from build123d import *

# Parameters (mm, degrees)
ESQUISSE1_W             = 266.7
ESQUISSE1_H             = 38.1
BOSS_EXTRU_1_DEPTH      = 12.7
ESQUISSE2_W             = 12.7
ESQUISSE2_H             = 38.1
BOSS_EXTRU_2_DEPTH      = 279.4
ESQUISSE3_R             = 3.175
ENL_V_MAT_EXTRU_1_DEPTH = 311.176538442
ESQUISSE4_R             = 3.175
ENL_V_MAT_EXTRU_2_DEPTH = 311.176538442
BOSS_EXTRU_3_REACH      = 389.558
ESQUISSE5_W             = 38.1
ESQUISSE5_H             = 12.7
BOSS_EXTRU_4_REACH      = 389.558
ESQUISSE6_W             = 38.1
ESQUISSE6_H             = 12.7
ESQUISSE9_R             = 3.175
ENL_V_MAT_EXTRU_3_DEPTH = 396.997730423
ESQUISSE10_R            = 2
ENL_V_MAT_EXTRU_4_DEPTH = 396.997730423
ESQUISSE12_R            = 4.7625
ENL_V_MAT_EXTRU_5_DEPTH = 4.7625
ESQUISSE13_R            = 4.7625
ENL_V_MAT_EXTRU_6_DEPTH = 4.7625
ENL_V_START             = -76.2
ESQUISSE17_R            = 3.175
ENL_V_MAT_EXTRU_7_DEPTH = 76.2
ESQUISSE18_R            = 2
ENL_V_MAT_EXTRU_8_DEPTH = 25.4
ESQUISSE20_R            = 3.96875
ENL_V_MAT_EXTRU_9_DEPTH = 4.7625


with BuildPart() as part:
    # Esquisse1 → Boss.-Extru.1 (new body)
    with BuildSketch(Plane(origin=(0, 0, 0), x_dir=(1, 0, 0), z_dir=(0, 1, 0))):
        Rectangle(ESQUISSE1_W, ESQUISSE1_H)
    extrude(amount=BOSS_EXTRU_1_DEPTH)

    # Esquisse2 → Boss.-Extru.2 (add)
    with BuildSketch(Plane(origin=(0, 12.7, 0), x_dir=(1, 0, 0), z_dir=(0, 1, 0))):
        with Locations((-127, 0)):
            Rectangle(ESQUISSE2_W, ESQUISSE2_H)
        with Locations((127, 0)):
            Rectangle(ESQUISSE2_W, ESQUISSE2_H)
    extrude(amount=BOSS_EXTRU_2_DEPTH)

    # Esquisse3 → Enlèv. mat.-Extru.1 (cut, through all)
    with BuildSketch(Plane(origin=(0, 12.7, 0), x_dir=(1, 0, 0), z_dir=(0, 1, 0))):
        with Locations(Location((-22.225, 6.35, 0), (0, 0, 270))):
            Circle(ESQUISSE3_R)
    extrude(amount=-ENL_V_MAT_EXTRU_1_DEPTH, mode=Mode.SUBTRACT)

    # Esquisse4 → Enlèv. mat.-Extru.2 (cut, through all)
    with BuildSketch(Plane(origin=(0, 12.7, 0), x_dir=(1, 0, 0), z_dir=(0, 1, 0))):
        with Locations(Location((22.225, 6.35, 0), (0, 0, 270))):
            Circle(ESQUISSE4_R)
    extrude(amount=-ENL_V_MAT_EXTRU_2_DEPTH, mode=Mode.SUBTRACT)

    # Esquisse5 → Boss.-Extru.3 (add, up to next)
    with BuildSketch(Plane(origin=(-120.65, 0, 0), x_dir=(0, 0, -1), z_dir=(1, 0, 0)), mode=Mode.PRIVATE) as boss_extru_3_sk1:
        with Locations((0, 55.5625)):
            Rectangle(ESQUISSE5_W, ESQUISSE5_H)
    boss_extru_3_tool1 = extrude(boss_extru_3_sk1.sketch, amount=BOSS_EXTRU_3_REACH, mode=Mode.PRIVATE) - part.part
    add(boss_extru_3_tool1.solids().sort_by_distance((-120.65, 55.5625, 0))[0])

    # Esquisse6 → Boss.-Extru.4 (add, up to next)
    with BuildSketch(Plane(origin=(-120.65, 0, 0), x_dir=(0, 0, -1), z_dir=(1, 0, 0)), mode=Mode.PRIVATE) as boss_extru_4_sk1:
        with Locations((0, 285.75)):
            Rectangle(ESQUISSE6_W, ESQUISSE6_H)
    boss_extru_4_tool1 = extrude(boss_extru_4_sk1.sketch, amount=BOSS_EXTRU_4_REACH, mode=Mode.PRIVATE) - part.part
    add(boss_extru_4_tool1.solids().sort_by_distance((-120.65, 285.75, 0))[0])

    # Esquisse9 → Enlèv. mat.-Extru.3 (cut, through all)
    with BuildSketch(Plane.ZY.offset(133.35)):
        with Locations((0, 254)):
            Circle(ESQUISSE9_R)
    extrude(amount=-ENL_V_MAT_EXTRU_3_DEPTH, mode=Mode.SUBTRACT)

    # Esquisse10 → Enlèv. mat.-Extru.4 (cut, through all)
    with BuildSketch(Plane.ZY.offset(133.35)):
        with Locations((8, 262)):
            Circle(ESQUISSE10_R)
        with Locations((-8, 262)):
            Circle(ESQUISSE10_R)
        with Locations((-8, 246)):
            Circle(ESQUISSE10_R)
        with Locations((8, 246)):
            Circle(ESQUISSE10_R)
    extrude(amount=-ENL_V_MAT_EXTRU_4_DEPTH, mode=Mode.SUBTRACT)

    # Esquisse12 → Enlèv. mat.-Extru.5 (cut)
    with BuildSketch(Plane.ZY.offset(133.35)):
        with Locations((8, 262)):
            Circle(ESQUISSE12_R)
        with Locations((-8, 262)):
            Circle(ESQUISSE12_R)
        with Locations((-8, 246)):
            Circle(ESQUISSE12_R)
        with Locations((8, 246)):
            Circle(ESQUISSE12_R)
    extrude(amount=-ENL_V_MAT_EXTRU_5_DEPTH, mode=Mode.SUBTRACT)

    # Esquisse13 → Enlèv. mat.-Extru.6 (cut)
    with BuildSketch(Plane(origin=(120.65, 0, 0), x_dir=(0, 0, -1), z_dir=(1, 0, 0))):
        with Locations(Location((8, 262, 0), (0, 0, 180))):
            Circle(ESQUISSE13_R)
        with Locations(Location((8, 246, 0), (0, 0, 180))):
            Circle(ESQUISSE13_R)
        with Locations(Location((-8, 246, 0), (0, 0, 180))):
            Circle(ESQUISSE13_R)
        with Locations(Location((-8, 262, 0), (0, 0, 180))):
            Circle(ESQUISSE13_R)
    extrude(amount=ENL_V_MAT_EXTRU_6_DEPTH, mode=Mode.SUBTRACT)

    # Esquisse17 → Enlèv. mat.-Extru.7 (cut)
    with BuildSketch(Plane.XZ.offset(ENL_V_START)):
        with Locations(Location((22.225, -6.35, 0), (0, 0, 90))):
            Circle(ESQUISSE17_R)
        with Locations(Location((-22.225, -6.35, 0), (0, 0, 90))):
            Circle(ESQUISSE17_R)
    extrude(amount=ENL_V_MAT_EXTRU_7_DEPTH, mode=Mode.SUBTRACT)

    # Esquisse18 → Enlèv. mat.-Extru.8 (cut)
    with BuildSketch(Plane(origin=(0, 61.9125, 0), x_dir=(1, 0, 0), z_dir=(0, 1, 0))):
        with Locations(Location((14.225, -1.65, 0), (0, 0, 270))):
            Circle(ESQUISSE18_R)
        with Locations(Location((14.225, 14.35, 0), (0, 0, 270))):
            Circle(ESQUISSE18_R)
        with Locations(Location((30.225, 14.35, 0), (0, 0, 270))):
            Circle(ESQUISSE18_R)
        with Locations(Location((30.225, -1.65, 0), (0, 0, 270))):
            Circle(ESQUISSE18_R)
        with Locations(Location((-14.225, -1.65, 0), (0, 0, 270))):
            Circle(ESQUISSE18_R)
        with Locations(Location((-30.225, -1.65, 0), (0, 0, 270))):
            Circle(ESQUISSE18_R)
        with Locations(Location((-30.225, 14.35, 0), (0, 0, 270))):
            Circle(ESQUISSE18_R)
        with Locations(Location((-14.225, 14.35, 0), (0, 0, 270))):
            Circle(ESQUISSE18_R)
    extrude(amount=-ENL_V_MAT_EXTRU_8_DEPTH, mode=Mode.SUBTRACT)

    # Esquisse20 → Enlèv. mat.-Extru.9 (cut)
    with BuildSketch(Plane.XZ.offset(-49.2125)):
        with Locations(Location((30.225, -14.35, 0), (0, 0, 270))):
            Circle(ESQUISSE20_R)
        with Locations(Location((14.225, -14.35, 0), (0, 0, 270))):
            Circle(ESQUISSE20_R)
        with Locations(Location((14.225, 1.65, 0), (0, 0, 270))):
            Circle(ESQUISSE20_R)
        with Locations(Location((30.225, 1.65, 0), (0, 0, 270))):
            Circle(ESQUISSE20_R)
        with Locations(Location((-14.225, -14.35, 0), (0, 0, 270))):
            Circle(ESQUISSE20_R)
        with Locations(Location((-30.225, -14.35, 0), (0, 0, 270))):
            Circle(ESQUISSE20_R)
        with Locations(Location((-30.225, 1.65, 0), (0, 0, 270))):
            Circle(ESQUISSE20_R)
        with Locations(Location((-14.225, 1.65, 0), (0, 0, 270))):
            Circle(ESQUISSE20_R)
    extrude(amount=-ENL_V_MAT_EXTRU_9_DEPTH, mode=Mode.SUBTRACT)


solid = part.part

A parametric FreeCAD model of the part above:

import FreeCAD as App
import Part
import Sketcher

V = App.Vector
Q = App.Units.Quantity

doc = App.newDocument("Part")
body = doc.addObject("PartDesign::Body", "Body")

sketch1 = body.newObject("Sketcher::SketchObject", "Sketch")
sketch1.AttachmentSupport = (doc.getObject("XZ_Plane"), [""])
sketch1.MapMode = "FlatFace"
sketch1.addGeometry(Part.LineSegment(V(-133, -19, 0), V(-133, 19, 0)), False)
sketch1.addGeometry(Part.LineSegment(V(-133, 19, 0), V(133, 19, 0)), False)
sketch1.addGeometry(Part.LineSegment(V(133, 19, 0), V(133, -19, 0)), False)
sketch1.addGeometry(Part.LineSegment(V(133, -19, 0), V(-133, -19, 0)), False)
sketch1.addConstraint(Sketcher.Constraint("Coincident", 0, 2, 1, 1))
sketch1.addConstraint(Sketcher.Constraint("Coincident", 1, 2, 2, 1))
sketch1.addConstraint(Sketcher.Constraint("Coincident", 2, 2, 3, 1))
sketch1.addConstraint(Sketcher.Constraint("Coincident", 3, 2, 0, 1))
sketch1.addConstraint(Sketcher.Constraint("Vertical", 0))
sketch1.addConstraint(Sketcher.Constraint("Horizontal", 1))
sketch1.addConstraint(Sketcher.Constraint("Vertical", 2))
sketch1.addConstraint(Sketcher.Constraint("Horizontal", 3))
sketch1.addConstraint(Sketcher.Constraint("Symmetric", 0, 2, 2, 2, -1, 1))
sketch1.addConstraint(Sketcher.Constraint("DistanceX", 1, 1, 1, 2, Q("10.5 in")))
sketch1.addConstraint(Sketcher.Constraint("DistanceY", 0, 1, 0, 2, Q("1.5 in")))
pad1 = body.newObject("PartDesign::Pad", "Pad")
pad1.Profile = sketch1
pad1.Length = Q("0.5 in")
pad1.Reversed = True

sketch2 = body.newObject("Sketcher::SketchObject", "Sketch001")
sketch2.AttachmentSupport = (doc.getObject("XZ_Plane"), [""])
sketch2.MapMode = "FlatFace"
sketch2.AttachmentOffset = App.Placement(V(0, 0, -0.5 * 25.4), App.Rotation())
sketch2.addGeometry(Part.LineSegment(V(-133, -19, 0), V(-133, 19, 0)), False)
sketch2.addGeometry(Part.LineSegment(V(-133, 19, 0), V(-121, 19, 0)), False)
sketch2.addGeometry(Part.LineSegment(V(-121, 19, 0), V(-121, -19, 0)), False)
sketch2.addGeometry(Part.LineSegment(V(-121, -19, 0), V(-133, -19, 0)), False)
sketch2.addGeometry(Part.LineSegment(V(121, -19, 0), V(121, 19, 0)), False)
sketch2.addGeometry(Part.LineSegment(V(121, 19, 0), V(133, 19, 0)), False)
sketch2.addGeometry(Part.LineSegment(V(133, 19, 0), V(133, -19, 0)), False)
sketch2.addGeometry(Part.LineSegment(V(133, -19, 0), V(121, -19, 0)), False)
sketch2.addConstraint(Sketcher.Constraint("Coincident", 0, 2, 1, 1))
sketch2.addConstraint(Sketcher.Constraint("Coincident", 1, 2, 2, 1))
sketch2.addConstraint(Sketcher.Constraint("Coincident", 2, 2, 3, 1))
sketch2.addConstraint(Sketcher.Constraint("Coincident", 3, 2, 0, 1))
sketch2.addConstraint(Sketcher.Constraint("Coincident", 4, 2, 5, 1))
sketch2.addConstraint(Sketcher.Constraint("Coincident", 5, 2, 6, 1))
sketch2.addConstraint(Sketcher.Constraint("Coincident", 6, 2, 7, 1))
sketch2.addConstraint(Sketcher.Constraint("Coincident", 7, 2, 4, 1))
sketch2.addConstraint(Sketcher.Constraint("Vertical", 0))
sketch2.addConstraint(Sketcher.Constraint("Horizontal", 1))
sketch2.addConstraint(Sketcher.Constraint("Vertical", 2))
sketch2.addConstraint(Sketcher.Constraint("Horizontal", 3))
sketch2.addConstraint(Sketcher.Constraint("Vertical", 4))
sketch2.addConstraint(Sketcher.Constraint("Horizontal", 5))
sketch2.addConstraint(Sketcher.Constraint("Vertical", 6))
sketch2.addConstraint(Sketcher.Constraint("Horizontal", 7))
sketch2.addConstraint(Sketcher.Constraint("Symmetric", 2, 2, 4, 2, -1, 1))
sketch2.addConstraint(Sketcher.Constraint("Symmetric", 0, 2, 6, 2, -1, 1))
sketch2.addConstraint(Sketcher.Constraint("Horizontal", 1, 2, 4, 2))
sketch2.addConstraint(Sketcher.Constraint("DistanceX", 1, 1, 1, 2, Q("0.5 in")))
sketch2.addConstraint(Sketcher.Constraint("DistanceY", 0, 1, 0, 2, Q("1.5 in")))
sketch2.addConstraint(Sketcher.Constraint("DistanceX", 0, 2, 4, 2, Q("10 in")))
pad2 = body.newObject("PartDesign::Pad", "Pad001")
pad2.Profile = sketch2
pad2.Length = Q("11 in")
pad2.Reversed = True

sketch3 = body.newObject("Sketcher::SketchObject", "Sketch002")
sketch3.AttachmentSupport = (doc.getObject("XZ_Plane"), [""])
sketch3.MapMode = "FlatFace"
sketch3.AttachmentOffset = App.Placement(V(0, 0, -0.5 * 25.4), App.Rotation())
sketch3.addGeometry(Part.Circle(V(-22.2, -6.3, 0), V(0, 0, 1), 3.2), False)
sketch3.addConstraint(Sketcher.Constraint("Diameter", 0, Q("0.25 in")))
sketch3.addConstraint(Sketcher.Constraint("DistanceY", 0, 3, -1, 1, Q("0.25 in")))
sketch3.addConstraint(Sketcher.Constraint("DistanceX", 0, 3, -1, 1, Q("0.875 in")))
pocket1 = body.newObject("PartDesign::Pocket", "Pocket")
pocket1.Profile = sketch3
pocket1.Type = "ThroughAll"
pocket1.Reversed = True

sketch4 = body.newObject("Sketcher::SketchObject", "Sketch003")
sketch4.AttachmentSupport = (doc.getObject("XZ_Plane"), [""])
sketch4.MapMode = "FlatFace"
sketch4.AttachmentOffset = App.Placement(V(0, 0, -0.5 * 25.4), App.Rotation())
sketch4.addGeometry(Part.Circle(V(22.2, -6.3, 0), V(0, 0, 1), 3.2), False)
sketch4.addConstraint(Sketcher.Constraint("Diameter", 0, Q("0.25 in")))
sketch4.addConstraint(Sketcher.Constraint("DistanceY", 0, 3, -1, 1, Q("0.25 in")))
sketch4.addConstraint(Sketcher.Constraint("DistanceX", -1, 1, 0, 3, Q("0.875 in")))
pocket2 = body.newObject("PartDesign::Pocket", "Pocket001")
pocket2.Profile = sketch4
pocket2.Type = "ThroughAll"
pocket2.Reversed = True

sketch5 = body.newObject("Sketcher::SketchObject", "Sketch004")
sketch5.AttachmentSupport = (doc.getObject("YZ_Plane"), [""])
sketch5.MapMode = "FlatFace"
sketch5.AttachmentOffset = App.Placement(V(0, 0, -4.75 * 25.4), App.Rotation())
sketch5.addGeometry(Part.LineSegment(V(62, 19, 0), V(49, 19, 0)), False)
sketch5.addGeometry(Part.LineSegment(V(49, 19, 0), V(49, -19, 0)), False)
sketch5.addGeometry(Part.LineSegment(V(49, -19, 0), V(62, -19, 0)), False)
sketch5.addGeometry(Part.LineSegment(V(62, -19, 0), V(62, 19, 0)), False)
sketch5.addConstraint(Sketcher.Constraint("Coincident", 0, 2, 1, 1))
sketch5.addConstraint(Sketcher.Constraint("Coincident", 1, 2, 2, 1))
sketch5.addConstraint(Sketcher.Constraint("Coincident", 2, 2, 3, 1))
sketch5.addConstraint(Sketcher.Constraint("Coincident", 3, 2, 0, 1))
sketch5.addConstraint(Sketcher.Constraint("Horizontal", 0))
sketch5.addConstraint(Sketcher.Constraint("Vertical", 1))
sketch5.addConstraint(Sketcher.Constraint("Horizontal", 2))
sketch5.addConstraint(Sketcher.Constraint("Vertical", 3))
sketch5.addConstraint(Sketcher.Constraint("DistanceX", 0, 2, 0, 1, Q("0.5 in")))
sketch5.addConstraint(Sketcher.Constraint("DistanceY", 1, 2, 1, 1, Q("1.5 in")))
sketch5.addConstraint(Sketcher.Constraint("DistanceY", -1, 1, 0, 2, Q("0.75 in")))
sketch5.addConstraint(Sketcher.Constraint("DistanceX", -1, 1, 0, 2, Q("1.9375 in")))
pad3 = body.newObject("PartDesign::Pad", "Pad002")
pad3.Profile = sketch5
pad3.Type = "UpToFirst"

sketch6 = body.newObject("Sketcher::SketchObject", "Sketch005")
sketch6.AttachmentSupport = (doc.getObject("YZ_Plane"), [""])
sketch6.MapMode = "FlatFace"
sketch6.AttachmentOffset = App.Placement(V(0, 0, -4.75 * 25.4), App.Rotation())
sketch6.addGeometry(Part.LineSegment(V(292, 19, 0), V(279, 19, 0)), False)
sketch6.addGeometry(Part.LineSegment(V(279, 19, 0), V(279, -19, 0)), False)
sketch6.addGeometry(Part.LineSegment(V(279, -19, 0), V(292, -19, 0)), False)
sketch6.addGeometry(Part.LineSegment(V(292, -19, 0), V(292, 19, 0)), False)
sketch6.addConstraint(Sketcher.Constraint("Coincident", 0, 2, 1, 1))
sketch6.addConstraint(Sketcher.Constraint("Coincident", 1, 2, 2, 1))
sketch6.addConstraint(Sketcher.Constraint("Coincident", 2, 2, 3, 1))
sketch6.addConstraint(Sketcher.Constraint("Coincident", 3, 2, 0, 1))
sketch6.addConstraint(Sketcher.Constraint("Horizontal", 0))
sketch6.addConstraint(Sketcher.Constraint("Vertical", 1))
sketch6.addConstraint(Sketcher.Constraint("Horizontal", 2))
sketch6.addConstraint(Sketcher.Constraint("Vertical", 3))
sketch6.addConstraint(Sketcher.Constraint("DistanceX", 0, 2, 0, 1, Q("0.5 in")))
sketch6.addConstraint(Sketcher.Constraint("DistanceY", 1, 2, 1, 1, Q("1.5 in")))
sketch6.addConstraint(Sketcher.Constraint("DistanceX", -1, 1, 0, 2, Q("11 in")))
sketch6.addConstraint(Sketcher.Constraint("DistanceY", -1, 1, 0, 2, Q("0.75 in")))
pad4 = body.newObject("PartDesign::Pad", "Pad003")
pad4.Profile = sketch6
pad4.Type = "UpToFirst"

sketch7 = body.newObject("Sketcher::SketchObject", "Sketch006")
sketch7.AttachmentSupport = (doc.getObject("YZ_Plane"), [""])
sketch7.MapMode = "FlatFace"
sketch7.AttachmentOffset = App.Placement(V(0, 0, -5.25 * 25.4), App.Rotation())
sketch7.addGeometry(Part.Circle(V(254, 0, 0), V(0, 0, 1), 3.2), False)
sketch7.addConstraint(Sketcher.Constraint("PointOnObject", 0, 3, -1))
sketch7.addConstraint(Sketcher.Constraint("Diameter", 0, Q("0.25 in")))
sketch7.addConstraint(Sketcher.Constraint("DistanceX", -1, 1, 0, 3, Q("10 in")))
pocket3 = body.newObject("PartDesign::Pocket", "Pocket002")
pocket3.Profile = sketch7
pocket3.Type = "ThroughAll"
pocket3.Reversed = True

sketch8 = body.newObject("Sketcher::SketchObject", "Sketch007")
sketch8.AttachmentSupport = (doc.getObject("YZ_Plane"), [""])
sketch8.MapMode = "FlatFace"
sketch8.AttachmentOffset = App.Placement(V(0, 0, -5.25 * 25.4), App.Rotation())
sketch8.addGeometry(Part.Circle(V(262, 8, 0), V(0, 0, 1), 2), False)
sketch8.addGeometry(Part.Circle(V(262, -8, 0), V(0, 0, 1), 2), False)
sketch8.addGeometry(Part.Circle(V(246, -8, 0), V(0, 0, 1), 2), False)
sketch8.addGeometry(Part.Circle(V(246, 8, 0), V(0, 0, 1), 2), False)
sketch8.addConstraint(Sketcher.Constraint("Equal", 0, 1))
sketch8.addConstraint(Sketcher.Constraint("Equal", 1, 2))
sketch8.addConstraint(Sketcher.Constraint("Equal", 2, 3))
sketch8.addConstraint(Sketcher.Constraint("Symmetric", 0, 3, 1, 3, -1))
sketch8.addConstraint(Sketcher.Constraint("Symmetric", 2, 3, 3, 3, -1))
sketch8.addConstraint(Sketcher.Constraint("Horizontal", 1, 3, 2, 3))
sketch8.addConstraint(Sketcher.Constraint("Diameter", 0, 4.0))
sketch8.addConstraint(Sketcher.Constraint("DistanceX", -1, 1, 0, 3, 262.0))
sketch8.addConstraint(Sketcher.Constraint("DistanceY", -1, 1, 0, 3, 8.0))
sketch8.addConstraint(Sketcher.Constraint("DistanceX", -1, 1, 2, 3, 246.0))
pocket4 = body.newObject("PartDesign::Pocket", "Pocket003")
pocket4.Profile = sketch8
pocket4.Type = "ThroughAll"
pocket4.Reversed = True

sketch9 = body.newObject("Sketcher::SketchObject", "Sketch008")
sketch9.AttachmentSupport = (doc.getObject("YZ_Plane"), [""])
sketch9.MapMode = "FlatFace"
sketch9.AttachmentOffset = App.Placement(V(0, 0, -5.25 * 25.4), App.Rotation())
sketch9.addGeometry(Part.Circle(V(262, 8, 0), V(0, 0, 1), 4.8), False)
sketch9.addGeometry(Part.Circle(V(262, -8, 0), V(0, 0, 1), 4.8), False)
sketch9.addGeometry(Part.Circle(V(246, -8, 0), V(0, 0, 1), 4.8), False)
sketch9.addGeometry(Part.Circle(V(246, 8, 0), V(0, 0, 1), 4.8), False)
sketch9.addConstraint(Sketcher.Constraint("Equal", 0, 1))
sketch9.addConstraint(Sketcher.Constraint("Equal", 1, 2))
sketch9.addConstraint(Sketcher.Constraint("Equal", 2, 3))
sketch9.addConstraint(Sketcher.Constraint("Symmetric", 0, 3, 1, 3, -1))
sketch9.addConstraint(Sketcher.Constraint("Symmetric", 2, 3, 3, 3, -1))
sketch9.addConstraint(Sketcher.Constraint("Horizontal", 1, 3, 2, 3))
sketch9.addConstraint(Sketcher.Constraint("Diameter", 0, Q("0.375 in")))
sketch9.addConstraint(Sketcher.Constraint("DistanceX", -1, 1, 0, 3, 262.0))
sketch9.addConstraint(Sketcher.Constraint("DistanceY", -1, 1, 0, 3, 8.0))
sketch9.addConstraint(Sketcher.Constraint("DistanceX", -1, 1, 2, 3, 246.0))
pocket5 = body.newObject("PartDesign::Pocket", "Pocket004")
pocket5.Profile = sketch9
pocket5.Length = Q("0.1875 in")
pocket5.Reversed = True

sketch10 = body.newObject("Sketcher::SketchObject", "Sketch009")
sketch10.AttachmentSupport = (doc.getObject("YZ_Plane"), [""])
sketch10.MapMode = "FlatFace"
sketch10.AttachmentOffset = App.Placement(V(0, 0, 4.75 * 25.4), App.Rotation())
sketch10.addGeometry(Part.Circle(V(262, -8, 0), V(0, 0, 1), 4.8), False)
sketch10.addGeometry(Part.Circle(V(246, -8, 0), V(0, 0, 1), 4.8), False)
sketch10.addGeometry(Part.Circle(V(246, 8, 0), V(0, 0, 1), 4.8), False)
sketch10.addGeometry(Part.Circle(V(262, 8, 0), V(0, 0, 1), 4.8), False)
sketch10.addConstraint(Sketcher.Constraint("Equal", 0, 1))
sketch10.addConstraint(Sketcher.Constraint("Equal", 1, 2))
sketch10.addConstraint(Sketcher.Constraint("Equal", 2, 3))
sketch10.addConstraint(Sketcher.Constraint("Symmetric", 1, 3, 2, 3, -1))
sketch10.addConstraint(Sketcher.Constraint("Symmetric", 0, 3, 3, 3, -1))
sketch10.addConstraint(Sketcher.Constraint("Horizontal", 0, 3, 1, 3))
sketch10.addConstraint(Sketcher.Constraint("Diameter", 0, Q("0.375 in")))
sketch10.addConstraint(Sketcher.Constraint("DistanceX", -1, 1, 0, 3, 262.0))
sketch10.addConstraint(Sketcher.Constraint("DistanceY", 0, 3, -1, 1, 8.0))
sketch10.addConstraint(Sketcher.Constraint("DistanceX", -1, 1, 1, 3, 246.0))
pocket6 = body.newObject("PartDesign::Pocket", "Pocket005")
pocket6.Profile = sketch10
pocket6.Length = Q("0.1875 in")
pocket6.Reversed = True

sketch11 = body.newObject("Sketcher::SketchObject", "Sketch010")
sketch11.AttachmentSupport = (doc.getObject("XZ_Plane"), [""])
sketch11.MapMode = "FlatFace"
sketch11.AttachmentOffset = App.Placement(V(0, 0, -3 * 25.4), App.Rotation())
sketch11.addGeometry(Part.Circle(V(22.2, -6.3, 0), V(0, 0, 1), 3.2), False)
sketch11.addGeometry(Part.Circle(V(-22.2, -6.3, 0), V(0, 0, 1), 3.2), False)
sketch11.addConstraint(Sketcher.Constraint("Equal", 0, 1))
sketch11.addConstraint(Sketcher.Constraint("Symmetric", 0, 3, 1, 3, -2))
sketch11.addConstraint(Sketcher.Constraint("Diameter", 0, Q("0.25 in")))
sketch11.addConstraint(Sketcher.Constraint("DistanceY", 0, 3, -1, 1, Q("0.25 in")))
sketch11.addConstraint(Sketcher.Constraint("DistanceX", 1, 3, 0, 3, Q("1.75 in")))
pocket7 = body.newObject("PartDesign::Pocket", "Pocket006")
pocket7.Profile = sketch11
pocket7.Length = Q("3 in")
pocket7.Reversed = True

sketch12 = body.newObject("Sketcher::SketchObject", "Sketch011")
sketch12.AttachmentSupport = (doc.getObject("XZ_Plane"), [""])
sketch12.MapMode = "FlatFace"
sketch12.AttachmentOffset = App.Placement(V(0, 0, -2.4375 * 25.4), App.Rotation())
sketch12.addGeometry(Part.Circle(V(14.2, 1.6, 0), V(0, 0, 1), 2), False)
sketch12.addGeometry(Part.Circle(V(14.2, -14.3, 0), V(0, 0, 1), 2), False)
sketch12.addGeometry(Part.Circle(V(30.2, -14.3, 0), V(0, 0, 1), 2), False)
sketch12.addGeometry(Part.Circle(V(30.2, 1.6, 0), V(0, 0, 1), 2), False)
sketch12.addGeometry(Part.Circle(V(-14.2, 1.6, 0), V(0, 0, 1), 2), False)
sketch12.addGeometry(Part.Circle(V(-30.2, 1.6, 0), V(0, 0, 1), 2), False)
sketch12.addGeometry(Part.Circle(V(-30.2, -14.3, 0), V(0, 0, 1), 2), False)
sketch12.addGeometry(Part.Circle(V(-14.2, -14.3, 0), V(0, 0, 1), 2), False)
sketch12.addConstraint(Sketcher.Constraint("Equal", 0, 1))
sketch12.addConstraint(Sketcher.Constraint("Equal", 1, 2))
sketch12.addConstraint(Sketcher.Constraint("Equal", 2, 3))
sketch12.addConstraint(Sketcher.Constraint("Equal", 3, 4))
sketch12.addConstraint(Sketcher.Constraint("Equal", 4, 5))
sketch12.addConstraint(Sketcher.Constraint("Equal", 5, 6))
sketch12.addConstraint(Sketcher.Constraint("Equal", 6, 7))
sketch12.addConstraint(Sketcher.Constraint("Symmetric", 0, 3, 4, 3, -2))
sketch12.addConstraint(Sketcher.Constraint("Symmetric", 3, 3, 5, 3, -2))
sketch12.addConstraint(Sketcher.Constraint("Symmetric", 2, 3, 6, 3, -2))
sketch12.addConstraint(Sketcher.Constraint("Symmetric", 1, 3, 7, 3, -2))
sketch12.addConstraint(Sketcher.Constraint("Horizontal", 1, 3, 2, 3))
sketch12.addConstraint(Sketcher.Constraint("Horizontal", 0, 3, 3, 3))
sketch12.addConstraint(Sketcher.Constraint("Vertical", 0, 3, 1, 3))
sketch12.addConstraint(Sketcher.Constraint("Vertical", 2, 3, 3, 3))
sketch12.addConstraint(Sketcher.Constraint("Diameter", 0, 4.0))
sketch12.addConstraint(Sketcher.Constraint("DistanceX", 4, 3, 3, 3, Q("1.75 in")))
sketch12.addConstraint(Sketcher.Constraint("DistanceX", -1, 1, 0, 3, 14.225))
sketch12.addConstraint(Sketcher.Constraint("DistanceY", -1, 1, 0, 3, 1.65))
sketch12.addConstraint(Sketcher.Constraint("DistanceY", 1, 3, -1, 1, 14.35))
pocket8 = body.newObject("PartDesign::Pocket", "Pocket007")
pocket8.Profile = sketch12
pocket8.Length = Q("1 in")
pocket8.Reversed = True

sketch13 = body.newObject("Sketcher::SketchObject", "Sketch012")
sketch13.AttachmentSupport = (doc.getObject("XZ_Plane"), [""])
sketch13.MapMode = "FlatFace"
sketch13.AttachmentOffset = App.Placement(V(0, 0, -1.9375 * 25.4), App.Rotation())
sketch13.addGeometry(Part.Circle(V(30.2, -14.3, 0), V(0, 0, 1), 4), False)
sketch13.addGeometry(Part.Circle(V(14.2, -14.3, 0), V(0, 0, 1), 4), False)
sketch13.addGeometry(Part.Circle(V(14.2, 1.6, 0), V(0, 0, 1), 4), False)
sketch13.addGeometry(Part.Circle(V(30.2, 1.6, 0), V(0, 0, 1), 4), False)
sketch13.addGeometry(Part.Circle(V(-14.2, -14.3, 0), V(0, 0, 1), 4), False)
sketch13.addGeometry(Part.Circle(V(-30.2, -14.3, 0), V(0, 0, 1), 4), False)
sketch13.addGeometry(Part.Circle(V(-30.2, 1.6, 0), V(0, 0, 1), 4), False)
sketch13.addGeometry(Part.Circle(V(-14.2, 1.6, 0), V(0, 0, 1), 4), False)
sketch13.addConstraint(Sketcher.Constraint("Equal", 0, 1))
sketch13.addConstraint(Sketcher.Constraint("Equal", 1, 2))
sketch13.addConstraint(Sketcher.Constraint("Equal", 2, 3))
sketch13.addConstraint(Sketcher.Constraint("Equal", 3, 4))
sketch13.addConstraint(Sketcher.Constraint("Equal", 4, 5))
sketch13.addConstraint(Sketcher.Constraint("Equal", 5, 6))
sketch13.addConstraint(Sketcher.Constraint("Equal", 6, 7))
sketch13.addConstraint(Sketcher.Constraint("Symmetric", 1, 3, 4, 3, -2))
sketch13.addConstraint(Sketcher.Constraint("Symmetric", 0, 3, 5, 3, -2))
sketch13.addConstraint(Sketcher.Constraint("Symmetric", 3, 3, 6, 3, -2))
sketch13.addConstraint(Sketcher.Constraint("Symmetric", 2, 3, 7, 3, -2))
sketch13.addConstraint(Sketcher.Constraint("Horizontal", 0, 3, 1, 3))
sketch13.addConstraint(Sketcher.Constraint("Horizontal", 2, 3, 3, 3))
sketch13.addConstraint(Sketcher.Constraint("Vertical", 1, 3, 2, 3))
sketch13.addConstraint(Sketcher.Constraint("Vertical", 0, 3, 3, 3))
sketch13.addConstraint(Sketcher.Constraint("Diameter", 0, Q("0.3125 in")))
sketch13.addConstraint(Sketcher.Constraint("DistanceX", 4, 3, 0, 3, Q("1.75 in")))
sketch13.addConstraint(Sketcher.Constraint("DistanceX", -1, 1, 0, 3, 30.225))
sketch13.addConstraint(Sketcher.Constraint("DistanceY", 0, 3, -1, 1, 14.35))
sketch13.addConstraint(Sketcher.Constraint("DistanceY", -1, 1, 2, 3, 1.65))
pocket9 = body.newObject("PartDesign::Pocket", "Pocket008")
pocket9.Profile = sketch13
pocket9.Length = Q("0.1875 in")

doc.recompute()
